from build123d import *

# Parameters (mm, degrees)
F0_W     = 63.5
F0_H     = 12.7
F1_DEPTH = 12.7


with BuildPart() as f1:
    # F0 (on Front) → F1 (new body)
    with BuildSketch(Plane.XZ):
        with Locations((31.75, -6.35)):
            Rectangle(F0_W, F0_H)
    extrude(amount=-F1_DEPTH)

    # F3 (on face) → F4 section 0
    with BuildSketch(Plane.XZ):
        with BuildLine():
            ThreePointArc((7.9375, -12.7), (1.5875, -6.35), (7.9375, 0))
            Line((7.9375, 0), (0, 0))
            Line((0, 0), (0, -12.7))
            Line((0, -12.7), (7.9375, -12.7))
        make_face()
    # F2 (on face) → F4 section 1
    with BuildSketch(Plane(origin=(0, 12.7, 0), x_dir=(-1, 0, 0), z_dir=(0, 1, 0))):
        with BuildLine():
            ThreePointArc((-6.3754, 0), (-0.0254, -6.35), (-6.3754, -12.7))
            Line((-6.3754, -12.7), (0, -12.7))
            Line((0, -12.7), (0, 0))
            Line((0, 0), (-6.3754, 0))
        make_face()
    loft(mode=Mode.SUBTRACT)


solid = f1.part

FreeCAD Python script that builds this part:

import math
import FreeCAD as App
import Part
import Sketcher

V = App.Vector
Q = App.Units.Quantity


def add_polygon(sketch, points):
    """Adds a closed chain of lines whose ends are joined by coincident constraints."""
    first, n = sketch.GeometryCount, len(points)
    for a, b in zip(points, points[1:] + points[:1]):
        sketch.addGeometry(Part.LineSegment(App.Vector(*a, 0), App.Vector(*b, 0)), False)
    for i in range(n):
        sketch.addConstraint(Sketcher.Constraint("Coincident", first + i, 2, first + (i + 1) % n, 1))

doc = App.newDocument("Part")
params = doc.addObject("Spreadsheet::Sheet", "Params")
for row, (alias, value) in enumerate([
    ("sketch1_width", "2.5 in"),
    ("sketch1_height", "0.5 in"),
    ("pad1_length", "0.5 in"),
    ("sketch2_radius", "0.25 in"),
    ("sketch2_width", "0.3125 in"),
    ("sketch3_radius", "0.25 in"),
    ("sketch3_width", "0.251 in"),
], start=1):
    params.set(f"A{row}", alias)
    params.set(f"B{row}", "=" + value)
    params.setAlias(f"B{row}", alias)

body = doc.addObject("PartDesign::Body", "Body")

# Sketch on XZ plane
sketch1 = body.newObject("Sketcher::SketchObject", "Sketch")
sketch1.AttachmentSupport = (doc.getObject("XZ_Plane"), [""])
sketch1.MapMode = "FlatFace"
add_polygon(sketch1, [(0, 0), (0, -12.7), (63.5, -12.7), (63.5, 0)])  # lines 0-3
sketch1.addConstraint(Sketcher.Constraint("Vertical", 0))
sketch1.addConstraint(Sketcher.Constraint("Horizontal", 1))
sketch1.addConstraint(Sketcher.Constraint("Vertical", 2))
sketch1.addConstraint(Sketcher.Constraint("Horizontal", 3))
sketch1.addConstraint(Sketcher.Constraint("Coincident", 3, 2, -1, 1))
sketch1.addConstraint(Sketcher.Constraint("DistanceX", 1, 1, 1, 2, Q("2.5 in")))
sketch1.addConstraint(Sketcher.Constraint("DistanceY", 0, 2, 0, 1, Q("0.5 in")))
sketch1.setExpression("Constraints[9]", "Params.sketch1_width")
sketch1.setExpression("Constraints[10]", "Params.sketch1_height")
pad1 = body.newObject("PartDesign::Pad", "Pad")
pad1.Profile = sketch1
pad1.setExpression("Length", "Params.pad1_length")
pad1.Reversed = True

# Sketch on XZ plane
sketch2 = body.newObject("Sketcher::SketchObject", "Sketch001")
sketch2.AttachmentSupport = (doc.getObject("XZ_Plane"), [""])
sketch2.MapMode = "FlatFace"
sketch2.addGeometry(Part.ArcOfCircle(Part.Circle(V(7.9375, -6.35, 0), V(0, 0, 1), 6.35), math.radians(90), math.radians(270)), False)
sketch2.addGeometry(Part.LineSegment(V(7.9375, 0, 0), V(0, 0, 0)), False)
sketch2.addGeometry(Part.LineSegment(V(0, 0, 0), V(0, -12.7, 0)), False)
sketch2.addGeometry(Part.LineSegment(V(0, -12.7, 0), V(7.9375, -12.7, 0)), False)
sketch2.addConstraint(Sketcher.Constraint("Tangent", 0, 1, 1, 1))
sketch2.addConstraint(Sketcher.Constraint("Coincident", 1, 2, 2, 1))
sketch2.addConstraint(Sketcher.Constraint("Coincident", 2, 2, 3, 1))
sketch2.addConstraint(Sketcher.Constraint("Tangent", 3, 2, 0, 2))
sketch2.addConstraint(Sketcher.Constraint("Horizontal", 1))
sketch2.addConstraint(Sketcher.Constraint("Vertical", 2))
sketch2.addConstraint(Sketcher.Constraint("Horizontal", 3))
sketch2.addConstraint(Sketcher.Constraint("Coincident", 1, 2, -1, 1))
sketch2.addConstraint(Sketcher.Constraint("Radius", 0, Q("0.25 in")))
sketch2.addConstraint(Sketcher.Constraint("DistanceX", 1, 2, 1, 1, Q("0.3125 in")))
sketch2.setExpression("Constraints[8]", "Params.sketch2_radius")
sketch2.setExpression("Constraints[9]", "Params.sketch2_width")

# Sketch on XZ plane
sketch3 = body.newObject("Sketcher::SketchObject", "Sketch002")
sketch3.AttachmentSupport = (doc.getObject("XZ_Plane"), [""])
sketch3.MapMode = "FlatFace"
sketch3.AttachmentOffset = App.Placement(V(0, 0, -0.5 * 25.4), App.Rotation())
sketch3.addGeometry(Part.ArcOfCircle(Part.Circle(V(6.3754, -6.35, 0), V(0, 0, 1), 6.35), math.radians(90), math.radians(270)), False)
sketch3.addGeometry(Part.LineSegment(V(6.3754, -12.7, 0), V(0, -12.7, 0)), False)
sketch3.addGeometry(Part.LineSegment(V(0, -12.7, 0), V(0, 0, 0)), False)
sketch3.addGeometry(Part.LineSegment(V(0, 0, 0), V(6.3754, 0, 0)), False)
sketch3.addConstraint(Sketcher.Constraint("Tangent", 0, 2, 1, 1))
sketch3.addConstraint(Sketcher.Constraint("Coincident", 1, 2, 2, 1))
sketch3.addConstraint(Sketcher.Constraint("Coincident", 2, 2, 3, 1))
sketch3.addConstraint(Sketcher.Constraint("Tangent", 3, 2, 0, 1))
sketch3.addConstraint(Sketcher.Constraint("Horizontal", 1))
sketch3.addConstraint(Sketcher.Constraint("Vertical", 2))
sketch3.addConstraint(Sketcher.Constraint("Horizontal", 3))
sketch3.addConstraint(Sketcher.Constraint("Coincident", 2, 2, -1, 1))
sketch3.addConstraint(Sketcher.Constraint("Radius", 0, Q("0.25 in")))
sketch3.addConstraint(Sketcher.Constraint("DistanceX", 1, 2, 1, 1, Q("0.251 in")))
sketch3.setExpression("Constraints[8]", "Params.sketch3_radius")
sketch3.setExpression("Constraints[9]", "Params.sketch3_width")

subtractiveloft = body.newObject("PartDesign::SubtractiveLoft", "SubtractiveLoft")
subtractiveloft.Profile = sketch2
subtractiveloft.Sections = [sketch3]

doc.recompute()
